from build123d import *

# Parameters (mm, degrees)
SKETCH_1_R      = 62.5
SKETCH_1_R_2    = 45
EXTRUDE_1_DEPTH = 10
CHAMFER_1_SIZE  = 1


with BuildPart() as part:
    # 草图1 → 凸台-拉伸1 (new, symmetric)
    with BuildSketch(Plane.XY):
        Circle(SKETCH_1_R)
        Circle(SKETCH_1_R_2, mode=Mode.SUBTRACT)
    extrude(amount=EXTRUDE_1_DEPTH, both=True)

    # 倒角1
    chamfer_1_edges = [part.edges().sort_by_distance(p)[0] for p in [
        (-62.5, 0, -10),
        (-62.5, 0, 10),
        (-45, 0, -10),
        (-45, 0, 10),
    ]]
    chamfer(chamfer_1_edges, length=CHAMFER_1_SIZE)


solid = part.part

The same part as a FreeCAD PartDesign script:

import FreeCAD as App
import Part
import Sketcher
from FreeCAD import Vector
Q = App.Units.Quantity


def edges_at(feature, points):
    """Names of the edges that pass closest to the given points."""
    edges = feature.Shape.Edges
    near = lambda p: min(range(len(edges)), key=lambda i: edges[i].distToShape(Part.Vertex(*p))[0])
    return sorted({f"Edge{near(p) + 1}" for p in points})

doc = App.newDocument("Part")
body = doc.addObject("PartDesign::Body", "Body")

# Sketch on XY plane
sketch1 = body.newObject("Sketcher::SketchObject", "Sketch")
sketch1.AttachmentSupport = (doc.getObject("XY_Plane"), [""])
sketch1.MapMode = "FlatFace"
sketch1.addGeometry([
    Part.Circle(Vector(0, 0, 0), Vector(0, 0, 1), 62),
    Part.Circle(Vector(0, 0, 0), Vector(0, 0, 1), 45),
], False)
sketch1.addConstraint([
    Sketcher.Constraint("Coincident", 0, 3, -1, 1),
    Sketcher.Constraint("Coincident", 1, 3, -1, 1),
    Sketcher.Constraint("Diameter", 0, Q("125 mm")),
    Sketcher.Constraint("Diameter", 1, Q("90 mm")),
])
pad1 = body.newObject("PartDesign::Pad", "Pad")
pad1.Profile = sketch1
pad1.Length = 20
pad1.Midplane = True
doc.recompute()

chamfer = body.newObject("PartDesign::Chamfer", "Chamfer")
chamfer.Base = (pad1, edges_at(pad1, [
    (-62.5, 0, -10),
    (-62.5, 0, 10),
    (-45, 0, -10),
    (-45, 0, 10),
]))
chamfer.Size = 1

doc.recompute()
